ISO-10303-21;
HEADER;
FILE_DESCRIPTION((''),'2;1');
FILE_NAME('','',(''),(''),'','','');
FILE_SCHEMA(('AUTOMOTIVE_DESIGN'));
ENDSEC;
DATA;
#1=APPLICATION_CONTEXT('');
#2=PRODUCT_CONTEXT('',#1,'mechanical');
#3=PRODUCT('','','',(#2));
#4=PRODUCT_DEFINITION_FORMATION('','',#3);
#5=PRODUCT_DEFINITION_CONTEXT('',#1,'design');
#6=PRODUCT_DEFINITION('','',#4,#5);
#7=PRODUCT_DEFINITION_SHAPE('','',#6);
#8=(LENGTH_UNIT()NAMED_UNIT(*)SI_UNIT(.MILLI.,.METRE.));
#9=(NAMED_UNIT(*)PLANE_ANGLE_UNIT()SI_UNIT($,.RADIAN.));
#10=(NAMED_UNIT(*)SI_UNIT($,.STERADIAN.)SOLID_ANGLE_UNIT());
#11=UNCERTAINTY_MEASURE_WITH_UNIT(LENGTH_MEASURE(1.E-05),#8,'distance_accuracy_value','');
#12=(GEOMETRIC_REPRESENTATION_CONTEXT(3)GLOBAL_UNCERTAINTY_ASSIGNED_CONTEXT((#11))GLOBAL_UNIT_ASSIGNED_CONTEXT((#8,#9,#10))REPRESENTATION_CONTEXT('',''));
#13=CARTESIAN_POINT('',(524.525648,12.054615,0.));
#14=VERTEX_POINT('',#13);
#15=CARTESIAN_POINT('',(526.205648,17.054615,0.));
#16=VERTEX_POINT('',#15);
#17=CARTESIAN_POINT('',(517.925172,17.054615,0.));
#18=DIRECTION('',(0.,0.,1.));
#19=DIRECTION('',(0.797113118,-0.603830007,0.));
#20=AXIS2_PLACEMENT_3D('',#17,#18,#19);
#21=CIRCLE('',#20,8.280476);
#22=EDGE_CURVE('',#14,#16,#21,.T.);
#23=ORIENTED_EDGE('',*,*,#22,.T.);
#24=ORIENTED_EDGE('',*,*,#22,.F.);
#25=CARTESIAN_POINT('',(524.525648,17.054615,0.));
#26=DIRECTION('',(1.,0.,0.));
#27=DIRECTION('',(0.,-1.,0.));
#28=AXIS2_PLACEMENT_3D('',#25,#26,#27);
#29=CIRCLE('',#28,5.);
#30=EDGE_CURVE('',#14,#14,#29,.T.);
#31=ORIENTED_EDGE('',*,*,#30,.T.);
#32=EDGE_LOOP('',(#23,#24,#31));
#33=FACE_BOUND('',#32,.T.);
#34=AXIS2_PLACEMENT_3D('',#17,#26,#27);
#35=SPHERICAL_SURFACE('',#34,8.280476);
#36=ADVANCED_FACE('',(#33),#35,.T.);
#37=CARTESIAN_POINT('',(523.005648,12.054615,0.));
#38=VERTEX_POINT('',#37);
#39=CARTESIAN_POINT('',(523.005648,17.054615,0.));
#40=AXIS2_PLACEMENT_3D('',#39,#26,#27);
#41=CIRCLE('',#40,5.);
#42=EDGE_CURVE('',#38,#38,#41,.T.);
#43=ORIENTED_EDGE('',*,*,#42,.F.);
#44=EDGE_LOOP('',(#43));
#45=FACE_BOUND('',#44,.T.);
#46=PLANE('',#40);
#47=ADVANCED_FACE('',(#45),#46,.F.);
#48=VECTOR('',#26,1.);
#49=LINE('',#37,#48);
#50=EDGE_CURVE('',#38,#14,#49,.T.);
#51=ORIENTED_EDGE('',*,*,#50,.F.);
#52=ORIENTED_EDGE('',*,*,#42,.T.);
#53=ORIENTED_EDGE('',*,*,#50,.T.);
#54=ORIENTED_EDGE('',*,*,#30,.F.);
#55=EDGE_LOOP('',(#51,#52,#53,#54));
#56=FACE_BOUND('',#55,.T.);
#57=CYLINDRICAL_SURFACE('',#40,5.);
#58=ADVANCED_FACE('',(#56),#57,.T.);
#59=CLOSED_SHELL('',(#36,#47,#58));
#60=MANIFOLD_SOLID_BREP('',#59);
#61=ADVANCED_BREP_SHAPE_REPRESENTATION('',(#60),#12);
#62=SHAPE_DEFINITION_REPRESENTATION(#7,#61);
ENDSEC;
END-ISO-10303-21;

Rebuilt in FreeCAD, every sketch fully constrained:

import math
import FreeCAD as App
import Part
import Sketcher

V = App.Vector

doc = App.newDocument("Part")
body = doc.addObject("PartDesign::Body", "Body")

# Sketch on XY plane
sketch1 = doc.addObject("Sketcher::SketchObject", "Sketch")
body.addObject(sketch1)
sketch1.AttachmentSupport = (doc.XY_Plane, [""])
sketch1.MapMode = "FlatFace"
sketch1.addGeometry(Part.LineSegment(V(523, 22.1, 0), V(523, 17.1, 0)), False)
sketch1.addGeometry(Part.LineSegment(V(523, 17.1, 0), V(526.2, 17.1, 0)), False)
sketch1.addGeometry(Part.ArcOfCircle(Part.Circle(V(517.9, 17.1, 0), V(0, 0, 1), 8.3), math.radians(0), math.radians(37)), False)
sketch1.addGeometry(Part.LineSegment(V(524.5, 22.1, 0), V(523, 22.1, 0)), False)
sketch1.addGeometry(Part.LineSegment(V(517.9, 17.1, 0), V(526.2, 17.1, 0)), True)  # axis
sketch1.addConstraint(Sketcher.Constraint("Coincident", 0, 2, 1, 1))
sketch1.addConstraint(Sketcher.Constraint("Coincident", 1, 2, 2, 1))
sketch1.addConstraint(Sketcher.Constraint("Coincident", 2, 2, 3, 1))
sketch1.addConstraint(Sketcher.Constraint("Coincident", 3, 2, 0, 1))
sketch1.addConstraint(Sketcher.Constraint("Vertical", 0))
sketch1.addConstraint(Sketcher.Constraint("Horizontal", 1))
sketch1.addConstraint(Sketcher.Constraint("Horizontal", 3))
sketch1.addConstraint(Sketcher.Constraint("Horizontal", 4))
sketch1.addConstraint(Sketcher.Constraint("Coincident", 4, 1, 2, 3))
sketch1.addConstraint(Sketcher.Constraint("Coincident", 4, 2, 1, 2))
sketch1.addConstraint(Sketcher.Constraint("DistanceY", 0, 2, 0, 1, 5.0))
sketch1.addConstraint(Sketcher.Constraint("DistanceX", 1, 1, 1, 2, 3.2))
sketch1.addConstraint(Sketcher.Constraint("DistanceX", 3, 2, 3, 1, 1.52))
sketch1.addConstraint(Sketcher.Constraint("DistanceX", -1, 1, 0, 2, 523.005648))
sketch1.addConstraint(Sketcher.Constraint("DistanceY", -1, 1, 2, 3, 17.054615))
revolution = doc.addObject("PartDesign::Revolution", "Revolution")
body.addObject(revolution)
revolution.Profile = sketch1
revolution.ReferenceAxis = (sketch1, ["Axis0"])
revolution.Angle = 360

doc.recompute()
